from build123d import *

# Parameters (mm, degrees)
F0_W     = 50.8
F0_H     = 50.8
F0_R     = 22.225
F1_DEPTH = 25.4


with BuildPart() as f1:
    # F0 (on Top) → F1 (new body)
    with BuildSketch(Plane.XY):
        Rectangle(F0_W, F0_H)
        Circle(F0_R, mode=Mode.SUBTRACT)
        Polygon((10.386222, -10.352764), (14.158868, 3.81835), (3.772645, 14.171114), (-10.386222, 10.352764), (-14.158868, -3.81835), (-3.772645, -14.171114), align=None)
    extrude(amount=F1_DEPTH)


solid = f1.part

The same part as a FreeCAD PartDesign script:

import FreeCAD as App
import Part
import Sketcher
from FreeCAD import Vector
Q = App.Units.Quantity

doc = App.newDocument("Part")
params = doc.addObject("Spreadsheet::Sheet", "Params")
for row, (alias, value) in enumerate([
    ("sketch1_diameter", "1.75 in"),
    ("sketch1_width", "2 in"),
    ("pad1_length", "1 in"),
], start=1):
    params.set(f"A{row}", alias)
    params.set(f"B{row}", "=" + value)
    params.setAlias(f"B{row}", alias)

body = doc.addObject("PartDesign::Body", "Body")
body.AllowCompound = True

# Sketch on XY plane
sketch1 = doc.addObject("Sketcher::SketchObject", "Sketch")
body.addObject(sketch1)
sketch1.AttachmentSupport = (doc.XY_Plane, [""])
sketch1.MapMode = "FlatFace"
sketch1.addGeometry([
    Part.LineSegment(Vector(-25.4, 25.4, 0), Vector(-25.4, -25.4, 0)),  # 0
    Part.LineSegment(Vector(-25.4, -25.4, 0), Vector(25.4, -25.4, 0)),  # 1
    Part.LineSegment(Vector(25.4, -25.4, 0), Vector(25.4, 25.4, 0)),  # 2
    Part.LineSegment(Vector(25.4, 25.4, 0), Vector(-25.4, 25.4, 0)),  # 3
    Part.Circle(Vector(0, 0, 0), Vector(0, 0, 1), 22.225),  # 4
    Part.LineSegment(Vector(10.386222, -10.352764, 0), Vector(14.158868, 3.81835, 0)),  # 5
    Part.LineSegment(Vector(14.158868, 3.81835, 0), Vector(3.772645, 14.171114, 0)),  # 6
    Part.LineSegment(Vector(3.772645, 14.171114, 0), Vector(-10.386222, 10.352764, 0)),  # 7
    Part.LineSegment(Vector(-10.386222, 10.352764, 0), Vector(-14.158868, -3.81835, 0)),  # 8
    Part.LineSegment(Vector(-14.158868, -3.81835, 0), Vector(-3.772645, -14.171114, 0)),  # 9
    Part.LineSegment(Vector(-3.772645, -14.171114, 0), Vector(10.386222, -10.352764, 0)),  # 10
], False)
sketch1.addConstraint([
    Sketcher.Constraint("Coincident", 0, 2, 1, 1),
    Sketcher.Constraint("Coincident", 1, 2, 2, 1),
    Sketcher.Constraint("Coincident", 2, 2, 3, 1),
    Sketcher.Constraint("Coincident", 3, 2, 0, 1),
    Sketcher.Constraint("Coincident", 5, 2, 6, 1),
    Sketcher.Constraint("Coincident", 6, 2, 7, 1),
    Sketcher.Constraint("Coincident", 7, 2, 8, 1),
    Sketcher.Constraint("Coincident", 8, 2, 9, 1),
    Sketcher.Constraint("Coincident", 9, 2, 10, 1),
    Sketcher.Constraint("Coincident", 10, 2, 5, 1),
    Sketcher.Constraint("Vertical", 0),
    Sketcher.Constraint("Horizontal", 1),
    Sketcher.Constraint("Vertical", 2),
    Sketcher.Constraint("Horizontal", 3),
    Sketcher.Constraint("Coincident", 4, 3, -1, 1),
    Sketcher.Constraint("Symmetric", 0, 2, 2, 2, -1, 1),
    Sketcher.Constraint("Symmetric", 5, 2, 8, 2, -1, 1),
    Sketcher.Constraint("Symmetric", 6, 2, 9, 2, -1, 1),
    Sketcher.Constraint("Symmetric", 7, 2, 10, 2, -1, 1),
    Sketcher.Constraint("Equal", 3, 0),
    Sketcher.Constraint("Equal", 5, 6),
    Sketcher.Constraint("Equal", 6, 7),
    Sketcher.Constraint("Diameter", 4, Q("1.75 in")),
    Sketcher.Constraint("DistanceX", 1, 1, 1, 2, Q("2 in")),
    Sketcher.Constraint("DistanceY", 8, 2, 5, 2, Q("7.6367 mm")),
    Sketcher.Constraint("DistanceX", 5, 2, 2, 2, Q("11.241132 mm")),
    Sketcher.Constraint("DistanceY", 7, 2, 6, 2, Q("3.81835 mm")),
    Sketcher.Constraint("DistanceX", 7, 2, 5, 2, Q("24.54509 mm")),
])
sketch1.setExpression("Constraints[22]", "Params.sketch1_diameter")
sketch1.setExpression("Constraints[23]", "Params.sketch1_width")
pad1 = doc.addObject("PartDesign::Pad", "Pad")
body.addObject(pad1)
pad1.Profile = sketch1
pad1.setExpression("Length", "Params.pad1_length")

doc.recompute()
